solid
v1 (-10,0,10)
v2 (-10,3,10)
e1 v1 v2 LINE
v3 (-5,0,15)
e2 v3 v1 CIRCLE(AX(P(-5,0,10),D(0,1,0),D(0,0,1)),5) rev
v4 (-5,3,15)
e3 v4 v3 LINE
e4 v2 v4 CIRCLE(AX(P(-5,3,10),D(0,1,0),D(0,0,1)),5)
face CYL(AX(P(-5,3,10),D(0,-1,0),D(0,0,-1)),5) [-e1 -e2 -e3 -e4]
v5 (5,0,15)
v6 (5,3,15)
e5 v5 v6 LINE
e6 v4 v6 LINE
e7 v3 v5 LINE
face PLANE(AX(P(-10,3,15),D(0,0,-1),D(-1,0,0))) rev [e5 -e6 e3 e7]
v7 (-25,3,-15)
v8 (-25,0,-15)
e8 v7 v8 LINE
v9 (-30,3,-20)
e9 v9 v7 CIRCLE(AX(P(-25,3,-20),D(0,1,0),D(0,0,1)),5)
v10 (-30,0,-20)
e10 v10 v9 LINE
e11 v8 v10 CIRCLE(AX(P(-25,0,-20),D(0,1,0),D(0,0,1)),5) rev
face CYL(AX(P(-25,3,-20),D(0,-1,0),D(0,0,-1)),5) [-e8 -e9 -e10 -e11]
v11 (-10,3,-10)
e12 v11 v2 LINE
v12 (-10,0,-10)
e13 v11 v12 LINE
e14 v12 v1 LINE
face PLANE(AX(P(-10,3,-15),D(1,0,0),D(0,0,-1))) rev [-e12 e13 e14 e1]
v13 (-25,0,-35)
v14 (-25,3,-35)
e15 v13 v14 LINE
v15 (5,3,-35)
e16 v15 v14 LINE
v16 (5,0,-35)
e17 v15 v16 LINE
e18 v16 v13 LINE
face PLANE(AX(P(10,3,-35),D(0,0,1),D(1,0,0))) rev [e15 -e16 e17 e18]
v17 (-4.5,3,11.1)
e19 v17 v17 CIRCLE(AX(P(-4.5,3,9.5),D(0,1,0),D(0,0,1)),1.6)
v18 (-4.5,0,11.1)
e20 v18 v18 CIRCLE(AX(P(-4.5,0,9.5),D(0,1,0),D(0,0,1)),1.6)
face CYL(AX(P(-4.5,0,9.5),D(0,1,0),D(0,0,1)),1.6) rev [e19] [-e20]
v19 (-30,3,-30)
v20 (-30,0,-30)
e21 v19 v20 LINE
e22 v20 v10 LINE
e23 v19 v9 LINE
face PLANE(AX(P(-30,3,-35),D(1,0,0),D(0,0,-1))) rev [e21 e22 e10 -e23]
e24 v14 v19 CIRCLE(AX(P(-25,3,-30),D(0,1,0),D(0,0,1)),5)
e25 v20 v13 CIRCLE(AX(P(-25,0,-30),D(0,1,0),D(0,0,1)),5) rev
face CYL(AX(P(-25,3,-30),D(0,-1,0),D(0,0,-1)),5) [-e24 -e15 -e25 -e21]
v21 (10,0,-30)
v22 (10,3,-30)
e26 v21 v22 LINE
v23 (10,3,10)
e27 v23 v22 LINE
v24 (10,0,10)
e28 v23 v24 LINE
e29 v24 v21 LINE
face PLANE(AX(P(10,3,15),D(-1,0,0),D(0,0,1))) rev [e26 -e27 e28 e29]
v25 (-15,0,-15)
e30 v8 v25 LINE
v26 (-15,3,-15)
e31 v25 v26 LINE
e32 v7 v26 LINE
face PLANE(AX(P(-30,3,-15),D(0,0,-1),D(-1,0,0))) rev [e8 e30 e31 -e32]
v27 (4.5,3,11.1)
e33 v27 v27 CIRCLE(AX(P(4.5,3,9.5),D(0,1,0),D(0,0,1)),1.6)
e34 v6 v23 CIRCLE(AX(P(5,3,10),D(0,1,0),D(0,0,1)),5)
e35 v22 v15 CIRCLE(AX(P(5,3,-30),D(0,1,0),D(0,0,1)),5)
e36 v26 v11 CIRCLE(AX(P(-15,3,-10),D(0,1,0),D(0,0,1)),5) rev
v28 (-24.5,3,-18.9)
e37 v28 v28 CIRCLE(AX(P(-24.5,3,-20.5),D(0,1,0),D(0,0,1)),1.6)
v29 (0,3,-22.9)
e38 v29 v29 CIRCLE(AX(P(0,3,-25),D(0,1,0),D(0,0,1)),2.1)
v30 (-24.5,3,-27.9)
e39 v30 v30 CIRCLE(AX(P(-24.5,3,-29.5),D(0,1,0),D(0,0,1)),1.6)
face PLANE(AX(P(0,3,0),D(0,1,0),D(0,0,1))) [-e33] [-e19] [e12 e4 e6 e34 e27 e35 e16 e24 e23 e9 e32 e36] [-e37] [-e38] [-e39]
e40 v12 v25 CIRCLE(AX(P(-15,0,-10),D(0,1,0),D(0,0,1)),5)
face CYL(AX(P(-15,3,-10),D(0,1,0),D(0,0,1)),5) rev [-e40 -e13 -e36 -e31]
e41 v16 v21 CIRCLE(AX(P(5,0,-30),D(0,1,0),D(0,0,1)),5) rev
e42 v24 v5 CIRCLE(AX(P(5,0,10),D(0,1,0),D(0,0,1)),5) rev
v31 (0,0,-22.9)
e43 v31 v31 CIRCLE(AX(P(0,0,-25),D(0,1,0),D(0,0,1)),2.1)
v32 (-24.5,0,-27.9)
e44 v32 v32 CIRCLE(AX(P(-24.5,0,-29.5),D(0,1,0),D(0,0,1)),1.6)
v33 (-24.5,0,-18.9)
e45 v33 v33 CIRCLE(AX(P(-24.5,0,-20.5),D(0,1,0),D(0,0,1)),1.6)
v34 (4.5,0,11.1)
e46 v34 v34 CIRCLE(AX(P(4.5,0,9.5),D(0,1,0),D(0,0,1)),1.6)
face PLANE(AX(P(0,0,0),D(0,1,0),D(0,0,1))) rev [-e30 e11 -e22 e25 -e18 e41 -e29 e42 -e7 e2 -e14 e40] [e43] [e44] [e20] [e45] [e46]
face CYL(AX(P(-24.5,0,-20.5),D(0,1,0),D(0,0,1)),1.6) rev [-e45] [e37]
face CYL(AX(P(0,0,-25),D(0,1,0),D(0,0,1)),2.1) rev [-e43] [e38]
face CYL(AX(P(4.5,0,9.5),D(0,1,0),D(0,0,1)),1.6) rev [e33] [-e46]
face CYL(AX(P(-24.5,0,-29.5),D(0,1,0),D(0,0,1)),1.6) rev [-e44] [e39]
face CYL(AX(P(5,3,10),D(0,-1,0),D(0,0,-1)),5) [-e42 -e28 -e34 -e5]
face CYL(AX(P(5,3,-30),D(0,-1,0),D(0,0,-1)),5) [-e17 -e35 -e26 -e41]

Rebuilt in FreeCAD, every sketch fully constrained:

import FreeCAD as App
import Part
import Sketcher


def edges_at(feature, points):
    """Names of the edges that pass closest to the given points."""
    edges = feature.Shape.Edges
    near = lambda p: min(range(len(edges)), key=lambda i: edges[i].distToShape(Part.Vertex(*p))[0])
    return sorted({f"Edge{near(p) + 1}" for p in points})


def add_polygon(sketch, points):
    """Adds a closed chain of lines whose ends are joined by coincident constraints."""
    first, n = sketch.GeometryCount, len(points)
    for a, b in zip(points, points[1:] + points[:1]):
        sketch.addGeometry(Part.LineSegment(App.Vector(*a, 0), App.Vector(*b, 0)), False)
    for i in range(n):
        sketch.addConstraint(Sketcher.Constraint("Coincident", first + i, 2, first + (i + 1) % n, 1))

doc = App.newDocument("Part")
body = doc.addObject("PartDesign::Body", "Body")

sketch1 = body.newObject("Sketcher::SketchObject", "Sketch")
sketch1.AttachmentSupport = (doc.getObject("XZ_Plane"), [""])
sketch1.MapMode = "FlatFace"
add_polygon(sketch1, [(-30, -35), (-30, -15), (-10, -15), (-10, 15), (10, 15), (10, -35)])
sketch1.addConstraint([
    Sketcher.Constraint("Vertical", 0),
    Sketcher.Constraint("Horizontal", 1),
    Sketcher.Constraint("Vertical", 2),
    Sketcher.Constraint("Horizontal", 3),
    Sketcher.Constraint("Vertical", 4),
    Sketcher.Constraint("Horizontal", 5),
    Sketcher.Constraint("Symmetric", 1, 2, 3, 2, -1, 1),
    Sketcher.Constraint("Equal", 1, 3),
    Sketcher.Constraint("Equal", 3, 0),
    Sketcher.Constraint("DistanceX", 1, 1, 1, 2, 20.0),
    Sketcher.Constraint("DistanceY", 2, 1, 2, 2, 30.0),
])
pad1 = body.newObject("PartDesign::Pad", "Pad")
pad1.Profile = sketch1
pad1.Length = 3
pad1.Reversed = True

sketch2 = body.newObject("Sketcher::SketchObject", "Sketch001")
sketch2.AttachmentSupport = (doc.getObject("XZ_Plane"), [""])
sketch2.MapMode = "FlatFace"
sketch2.AttachmentOffset = App.Placement(App.Vector(0, 0, -3), App.Rotation())
sketch2.addGeometry([
    Part.Circle(App.Vector(-24.5, -29.5, 0), App.Vector(0, 0, 1), 1.6),
    Part.Circle(App.Vector(-24.5, -20.5, 0), App.Vector(0, 0, 1), 1.6),
    Part.Circle(App.Vector(-4.5, 9.5, 0), App.Vector(0, 0, 1), 1.6),
    Part.Circle(App.Vector(4.5, 9.5, 0), App.Vector(0, 0, 1), 1.6),
], False)
sketch2.addConstraint([
    Sketcher.Constraint("Equal", 0, 1),
    Sketcher.Constraint("Equal", 1, 2),
    Sketcher.Constraint("Equal", 2, 3),
    Sketcher.Constraint("Symmetric", 2, 3, 3, 3, -2),
    Sketcher.Constraint("Vertical", 0, 3, 1, 3),
    Sketcher.Constraint("Diameter", 0, 3.2),
    Sketcher.Constraint("DistanceY", 0, 3, 1, 3, 9.0),
    Sketcher.Constraint("DistanceX", 1, 3, 2, 3, 20.0),
    Sketcher.Constraint("DistanceY", 1, 3, 2, 3, 30.0),
    Sketcher.Constraint("DistanceX", 2, 3, 3, 3, 9.0),
    Sketcher.Constraint("DistanceY", 0, 3, -1, 1, 29.5),
])
pocket1 = body.newObject("PartDesign::Pocket", "Pocket")
pocket1.Profile = sketch2
pocket1.Type = "ThroughAll"
pocket1.Reversed = True
doc.recompute()

fillet = body.newObject("PartDesign::Fillet", "Fillet")
fillet.Base = (pocket1, edges_at(pocket1, [
    (10, 1.5, 15),
    (-10, 1.5, 15),
    (-10, 1.5, -15),
    (-30, 1.5, -15),
    (-30, 1.5, -35),
    (10, 1.5, -35),
]))
fillet.Radius = 5

sketch3 = body.newObject("Sketcher::SketchObject", "Sketch002")
sketch3.AttachmentSupport = (doc.getObject("XZ_Plane"), [""])
sketch3.MapMode = "FlatFace"
sketch3.AttachmentOffset = App.Placement(App.Vector(0, 0, -3), App.Rotation())
sketch3.addGeometry(Part.Circle(App.Vector(0, -25, 0), App.Vector(0, 0, 1), 2.1), False)
sketch3.addConstraint([
    Sketcher.Constraint("PointOnObject", 0, 3, -2),
    Sketcher.Constraint("Diameter", 0, 4.2),
    Sketcher.Constraint("DistanceY", 0, 3, -1, 1, 25.0),
])
pocket2 = body.newObject("PartDesign::Pocket", "Pocket001")
pocket2.Profile = sketch3
pocket2.Type = "ThroughAll"
pocket2.Reversed = True

doc.recompute()
